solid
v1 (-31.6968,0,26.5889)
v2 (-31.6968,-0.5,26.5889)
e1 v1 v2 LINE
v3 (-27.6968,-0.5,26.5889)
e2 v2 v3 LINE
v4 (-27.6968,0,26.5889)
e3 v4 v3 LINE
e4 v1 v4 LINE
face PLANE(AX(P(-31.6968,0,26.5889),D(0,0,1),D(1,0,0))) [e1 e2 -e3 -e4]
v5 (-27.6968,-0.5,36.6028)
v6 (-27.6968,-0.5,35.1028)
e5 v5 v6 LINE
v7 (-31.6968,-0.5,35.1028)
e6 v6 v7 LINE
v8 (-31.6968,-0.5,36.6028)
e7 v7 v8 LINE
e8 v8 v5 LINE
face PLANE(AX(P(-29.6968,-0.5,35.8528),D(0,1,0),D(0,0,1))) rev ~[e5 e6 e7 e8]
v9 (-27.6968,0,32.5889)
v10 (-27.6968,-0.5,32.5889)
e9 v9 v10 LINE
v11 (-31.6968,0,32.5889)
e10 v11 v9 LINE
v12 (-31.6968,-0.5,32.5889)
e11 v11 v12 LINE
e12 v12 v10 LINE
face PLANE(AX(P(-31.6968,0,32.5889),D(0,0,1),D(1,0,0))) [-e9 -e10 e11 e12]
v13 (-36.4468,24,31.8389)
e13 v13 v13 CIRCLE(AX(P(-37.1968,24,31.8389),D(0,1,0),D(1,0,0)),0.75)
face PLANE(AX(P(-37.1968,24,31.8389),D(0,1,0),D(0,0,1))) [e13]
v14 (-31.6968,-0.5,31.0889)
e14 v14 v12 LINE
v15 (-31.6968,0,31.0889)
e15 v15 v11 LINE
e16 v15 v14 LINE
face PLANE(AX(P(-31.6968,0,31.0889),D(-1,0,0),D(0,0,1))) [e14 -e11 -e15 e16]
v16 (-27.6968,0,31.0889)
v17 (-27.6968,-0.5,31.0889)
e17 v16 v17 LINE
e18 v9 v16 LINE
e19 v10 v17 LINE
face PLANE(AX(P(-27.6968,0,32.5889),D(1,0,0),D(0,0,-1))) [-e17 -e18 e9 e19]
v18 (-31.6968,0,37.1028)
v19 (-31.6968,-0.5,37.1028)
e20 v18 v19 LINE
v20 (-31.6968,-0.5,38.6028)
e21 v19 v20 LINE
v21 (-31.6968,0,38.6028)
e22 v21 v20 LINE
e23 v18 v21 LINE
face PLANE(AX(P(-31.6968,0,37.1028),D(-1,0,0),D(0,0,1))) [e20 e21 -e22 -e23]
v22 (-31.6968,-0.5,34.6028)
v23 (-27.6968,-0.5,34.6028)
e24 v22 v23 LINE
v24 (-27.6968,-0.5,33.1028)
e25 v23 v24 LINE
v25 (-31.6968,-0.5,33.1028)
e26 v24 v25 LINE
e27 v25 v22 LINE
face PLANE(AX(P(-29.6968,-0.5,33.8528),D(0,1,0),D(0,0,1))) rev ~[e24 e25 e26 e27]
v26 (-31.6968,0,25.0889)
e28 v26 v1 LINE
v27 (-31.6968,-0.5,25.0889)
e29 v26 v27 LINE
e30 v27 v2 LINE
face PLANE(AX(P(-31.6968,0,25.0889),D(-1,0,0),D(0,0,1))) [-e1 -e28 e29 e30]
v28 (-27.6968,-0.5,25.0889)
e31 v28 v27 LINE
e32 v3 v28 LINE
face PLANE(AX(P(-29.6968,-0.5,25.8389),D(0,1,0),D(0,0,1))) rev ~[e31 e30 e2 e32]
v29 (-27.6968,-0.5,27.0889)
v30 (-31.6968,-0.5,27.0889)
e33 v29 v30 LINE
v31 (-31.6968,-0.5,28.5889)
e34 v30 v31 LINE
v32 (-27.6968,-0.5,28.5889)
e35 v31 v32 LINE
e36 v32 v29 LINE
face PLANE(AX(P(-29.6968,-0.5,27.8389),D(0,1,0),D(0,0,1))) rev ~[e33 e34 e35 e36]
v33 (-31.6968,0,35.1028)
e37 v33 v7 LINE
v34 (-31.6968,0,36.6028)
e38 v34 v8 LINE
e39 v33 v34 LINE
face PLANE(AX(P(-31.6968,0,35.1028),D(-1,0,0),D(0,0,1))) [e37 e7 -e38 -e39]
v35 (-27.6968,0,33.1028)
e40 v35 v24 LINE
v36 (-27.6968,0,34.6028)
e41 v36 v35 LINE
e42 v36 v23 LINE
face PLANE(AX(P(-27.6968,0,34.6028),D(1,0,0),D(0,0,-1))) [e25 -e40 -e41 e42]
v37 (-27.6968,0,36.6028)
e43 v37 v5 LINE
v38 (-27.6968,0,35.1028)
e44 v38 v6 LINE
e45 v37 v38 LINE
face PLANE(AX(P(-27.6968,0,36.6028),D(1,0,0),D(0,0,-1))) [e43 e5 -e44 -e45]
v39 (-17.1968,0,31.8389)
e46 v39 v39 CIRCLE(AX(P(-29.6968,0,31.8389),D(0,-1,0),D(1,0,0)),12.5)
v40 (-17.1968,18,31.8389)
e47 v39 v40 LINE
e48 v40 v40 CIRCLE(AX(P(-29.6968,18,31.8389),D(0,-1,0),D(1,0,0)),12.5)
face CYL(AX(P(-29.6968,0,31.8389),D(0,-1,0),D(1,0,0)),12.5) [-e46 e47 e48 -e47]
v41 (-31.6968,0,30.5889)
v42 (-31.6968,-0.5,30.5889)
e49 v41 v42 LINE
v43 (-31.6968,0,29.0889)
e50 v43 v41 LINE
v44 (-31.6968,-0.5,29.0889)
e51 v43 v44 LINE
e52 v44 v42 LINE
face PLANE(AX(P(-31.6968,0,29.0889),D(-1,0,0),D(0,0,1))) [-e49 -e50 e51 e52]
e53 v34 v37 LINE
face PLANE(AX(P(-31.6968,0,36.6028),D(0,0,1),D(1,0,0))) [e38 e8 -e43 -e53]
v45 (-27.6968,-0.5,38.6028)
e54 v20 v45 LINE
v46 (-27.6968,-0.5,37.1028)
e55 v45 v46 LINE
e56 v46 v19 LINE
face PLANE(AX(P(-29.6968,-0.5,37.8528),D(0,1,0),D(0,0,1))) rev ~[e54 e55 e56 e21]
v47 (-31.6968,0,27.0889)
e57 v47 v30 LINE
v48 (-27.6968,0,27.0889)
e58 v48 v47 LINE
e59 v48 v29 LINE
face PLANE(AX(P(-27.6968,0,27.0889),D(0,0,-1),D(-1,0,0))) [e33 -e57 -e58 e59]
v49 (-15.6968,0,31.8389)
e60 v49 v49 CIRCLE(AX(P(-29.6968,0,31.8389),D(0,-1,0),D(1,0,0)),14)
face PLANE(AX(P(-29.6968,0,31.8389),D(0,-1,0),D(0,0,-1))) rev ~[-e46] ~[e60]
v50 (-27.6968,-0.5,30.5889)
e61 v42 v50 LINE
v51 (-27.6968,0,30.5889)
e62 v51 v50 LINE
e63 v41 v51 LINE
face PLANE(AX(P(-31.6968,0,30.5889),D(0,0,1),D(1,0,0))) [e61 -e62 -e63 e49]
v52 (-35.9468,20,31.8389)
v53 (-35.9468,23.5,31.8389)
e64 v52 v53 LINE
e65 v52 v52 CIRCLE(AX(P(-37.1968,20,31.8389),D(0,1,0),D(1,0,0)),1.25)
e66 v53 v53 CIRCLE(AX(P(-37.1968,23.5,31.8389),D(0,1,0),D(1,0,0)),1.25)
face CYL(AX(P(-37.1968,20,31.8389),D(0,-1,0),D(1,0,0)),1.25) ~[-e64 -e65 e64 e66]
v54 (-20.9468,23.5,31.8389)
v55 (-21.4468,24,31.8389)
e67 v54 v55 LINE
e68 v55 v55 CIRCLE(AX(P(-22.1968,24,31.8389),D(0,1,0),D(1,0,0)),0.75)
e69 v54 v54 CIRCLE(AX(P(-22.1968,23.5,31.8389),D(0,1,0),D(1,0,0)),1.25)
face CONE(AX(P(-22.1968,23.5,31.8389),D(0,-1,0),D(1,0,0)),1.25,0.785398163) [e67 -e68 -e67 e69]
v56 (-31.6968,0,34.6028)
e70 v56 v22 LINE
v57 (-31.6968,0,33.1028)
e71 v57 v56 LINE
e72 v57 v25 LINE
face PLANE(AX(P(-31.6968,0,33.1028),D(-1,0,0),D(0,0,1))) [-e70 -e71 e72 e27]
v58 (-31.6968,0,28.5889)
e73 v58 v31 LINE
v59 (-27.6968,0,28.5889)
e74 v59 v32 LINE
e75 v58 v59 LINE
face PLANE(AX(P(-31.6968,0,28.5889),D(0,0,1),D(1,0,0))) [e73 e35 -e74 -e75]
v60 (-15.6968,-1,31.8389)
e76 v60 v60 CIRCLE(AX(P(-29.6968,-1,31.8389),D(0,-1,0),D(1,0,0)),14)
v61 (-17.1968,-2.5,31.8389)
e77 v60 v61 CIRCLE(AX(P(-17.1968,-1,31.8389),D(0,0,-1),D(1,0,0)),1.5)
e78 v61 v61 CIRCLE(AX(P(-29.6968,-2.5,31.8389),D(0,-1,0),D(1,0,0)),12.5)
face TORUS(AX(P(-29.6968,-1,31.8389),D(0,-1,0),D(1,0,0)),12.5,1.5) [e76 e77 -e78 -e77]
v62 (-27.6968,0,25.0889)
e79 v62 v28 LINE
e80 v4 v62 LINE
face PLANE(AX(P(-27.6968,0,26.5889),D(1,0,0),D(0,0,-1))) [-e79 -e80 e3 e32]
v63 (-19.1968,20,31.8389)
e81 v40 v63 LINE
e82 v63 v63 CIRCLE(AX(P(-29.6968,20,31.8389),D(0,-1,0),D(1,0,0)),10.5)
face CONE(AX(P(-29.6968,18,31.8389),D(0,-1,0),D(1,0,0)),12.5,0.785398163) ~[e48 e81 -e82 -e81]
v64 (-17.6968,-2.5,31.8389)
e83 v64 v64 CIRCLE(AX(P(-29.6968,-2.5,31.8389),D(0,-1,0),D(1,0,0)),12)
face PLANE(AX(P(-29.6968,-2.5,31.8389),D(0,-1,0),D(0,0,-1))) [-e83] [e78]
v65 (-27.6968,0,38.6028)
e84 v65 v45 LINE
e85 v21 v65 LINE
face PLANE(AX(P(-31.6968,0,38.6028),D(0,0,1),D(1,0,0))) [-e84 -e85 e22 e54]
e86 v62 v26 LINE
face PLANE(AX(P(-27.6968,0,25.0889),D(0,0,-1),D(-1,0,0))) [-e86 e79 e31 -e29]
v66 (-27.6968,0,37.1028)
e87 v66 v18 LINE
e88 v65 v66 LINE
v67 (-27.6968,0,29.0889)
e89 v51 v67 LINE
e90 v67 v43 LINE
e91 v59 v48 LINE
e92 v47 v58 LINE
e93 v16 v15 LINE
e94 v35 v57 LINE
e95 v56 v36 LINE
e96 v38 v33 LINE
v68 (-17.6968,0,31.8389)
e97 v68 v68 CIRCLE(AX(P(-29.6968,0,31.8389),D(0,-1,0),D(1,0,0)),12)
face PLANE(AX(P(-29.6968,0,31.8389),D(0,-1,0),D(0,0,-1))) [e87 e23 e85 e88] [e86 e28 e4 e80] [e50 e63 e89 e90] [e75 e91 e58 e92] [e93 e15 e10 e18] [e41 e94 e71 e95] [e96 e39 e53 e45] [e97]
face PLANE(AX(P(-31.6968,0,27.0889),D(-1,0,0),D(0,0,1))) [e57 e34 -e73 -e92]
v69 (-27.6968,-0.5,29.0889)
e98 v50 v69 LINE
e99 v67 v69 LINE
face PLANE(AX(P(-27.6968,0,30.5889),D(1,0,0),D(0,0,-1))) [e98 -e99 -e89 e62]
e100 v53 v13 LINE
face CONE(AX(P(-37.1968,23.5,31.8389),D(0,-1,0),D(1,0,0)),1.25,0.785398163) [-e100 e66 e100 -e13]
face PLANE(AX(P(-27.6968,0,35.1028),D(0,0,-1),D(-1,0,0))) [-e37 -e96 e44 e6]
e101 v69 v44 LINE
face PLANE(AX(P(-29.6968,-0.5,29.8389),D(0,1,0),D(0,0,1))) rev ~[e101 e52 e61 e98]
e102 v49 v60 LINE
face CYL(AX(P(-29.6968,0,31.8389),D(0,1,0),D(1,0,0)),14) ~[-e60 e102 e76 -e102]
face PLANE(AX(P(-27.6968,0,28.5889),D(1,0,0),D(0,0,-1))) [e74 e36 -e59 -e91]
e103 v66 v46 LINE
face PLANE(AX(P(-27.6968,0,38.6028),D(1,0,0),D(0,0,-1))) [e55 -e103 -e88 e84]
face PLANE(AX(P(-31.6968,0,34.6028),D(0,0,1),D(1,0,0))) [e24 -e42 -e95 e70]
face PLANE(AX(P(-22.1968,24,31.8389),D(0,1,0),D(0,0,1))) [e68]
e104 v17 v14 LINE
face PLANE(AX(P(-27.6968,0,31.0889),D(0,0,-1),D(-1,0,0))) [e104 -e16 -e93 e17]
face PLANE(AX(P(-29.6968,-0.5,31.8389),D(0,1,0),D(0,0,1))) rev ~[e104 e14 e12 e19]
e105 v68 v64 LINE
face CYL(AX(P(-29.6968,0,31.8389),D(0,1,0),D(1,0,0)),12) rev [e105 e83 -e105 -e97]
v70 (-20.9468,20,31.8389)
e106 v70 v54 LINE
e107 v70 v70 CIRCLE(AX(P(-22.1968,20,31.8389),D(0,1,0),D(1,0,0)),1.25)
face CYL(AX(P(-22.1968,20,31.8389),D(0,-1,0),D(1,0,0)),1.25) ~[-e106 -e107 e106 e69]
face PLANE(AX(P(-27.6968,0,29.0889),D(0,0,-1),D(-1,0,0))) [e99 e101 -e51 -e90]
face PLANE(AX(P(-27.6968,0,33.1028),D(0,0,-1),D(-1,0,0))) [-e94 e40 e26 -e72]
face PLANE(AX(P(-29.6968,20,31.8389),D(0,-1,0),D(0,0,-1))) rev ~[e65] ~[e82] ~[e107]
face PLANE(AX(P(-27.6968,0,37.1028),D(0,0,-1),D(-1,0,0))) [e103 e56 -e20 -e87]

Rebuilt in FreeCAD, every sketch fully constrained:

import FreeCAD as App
import Part
import Sketcher

V = App.Vector
Q = App.Units.Quantity


def edges_at(feature, points):
    """Names of the edges that pass closest to the given points."""
    edges = feature.Shape.Edges
    near = lambda p: min(range(len(edges)), key=lambda i: edges[i].distToShape(Part.Vertex(*p))[0])
    return sorted({f"Edge{near(p) + 1}" for p in points})

doc = App.newDocument("Part")
body = doc.addObject("PartDesign::Body", "Body")

# Sketch on XZ plane
sketch1 = body.newObject("Sketcher::SketchObject", "Sketch")
sketch1.AttachmentSupport = (doc.getObject("XZ_Plane"), [""])
sketch1.MapMode = "FlatFace"
sketch1.addGeometry(Part.Circle(V(-30, 32, 0), V(0, 0, 1), 12), False)
sketch1.addConstraint(Sketcher.Constraint("Diameter", 0, Q("25 mm")))
sketch1.addConstraint(Sketcher.Constraint("DistanceY", -1, 1, 0, 3, Q("31.839 mm")))
sketch1.addConstraint(Sketcher.Constraint("DistanceX", 0, 3, -1, 1, Q("29.6968 mm")))
pad1 = body.newObject("PartDesign::Pad", "Pad")
pad1.Profile = sketch1
pad1.Length = 20
pad1.Reversed = True
doc.recompute()

chamfer = body.newObject("PartDesign::Chamfer", "Chamfer")
chamfer.Base = (pad1, edges_at(pad1, [(-42.197, 20, 31.839)]))
chamfer.Size = 2

# Sketch on XZ plane
sketch2 = body.newObject("Sketcher::SketchObject", "Sketch001")
sketch2.AttachmentSupport = (doc.getObject("XZ_Plane"), [""])
sketch2.MapMode = "FlatFace"
sketch2.addGeometry(Part.Circle(V(-30, 32, 0), V(0, 0, 1), 14), False)
sketch2.addGeometry(Part.Circle(V(-30, 32, 0), V(0, 0, 1), 12), False)
sketch2.addConstraint(Sketcher.Constraint("Coincident", 1, 3, 0, 3))
sketch2.addConstraint(Sketcher.Constraint("Diameter", 0, Q("28 mm")))
sketch2.addConstraint(Sketcher.Constraint("Diameter", 1, Q("24 mm")))
sketch2.addConstraint(Sketcher.Constraint("DistanceY", -1, 1, 0, 3, Q("31.839 mm")))
sketch2.addConstraint(Sketcher.Constraint("DistanceX", 0, 3, -1, 1, Q("29.6968 mm")))
pad2 = body.newObject("PartDesign::Pad", "Pad001")
pad2.Profile = sketch2
pad2.Length = 2.5
doc.recompute()

fillet = body.newObject("PartDesign::Fillet", "Fillet")
fillet.Base = (pad2, edges_at(pad2, [(-43.697, -2.5, 31.839)]))
fillet.Radius = 1.5

# Sketch on XZ plane
sketch3 = body.newObject("Sketcher::SketchObject", "Sketch002")
sketch3.AttachmentSupport = (doc.getObject("XZ_Plane"), [""])
sketch3.MapMode = "FlatFace"
sketch3.AttachmentOffset = App.Placement(V(0, 0, -20), App.Rotation())
sketch3.addGeometry(Part.Circle(V(-22.2, 31.8, 0), V(0, 0, 1), 1.2), False)
sketch3.addGeometry(Part.Circle(V(-37.2, 31.8, 0), V(0, 0, 1), 1.2), False)
sketch3.addConstraint(Sketcher.Constraint("Equal", 0, 1))
sketch3.addConstraint(Sketcher.Constraint("Horizontal", 0, 3, 1, 3))
sketch3.addConstraint(Sketcher.Constraint("Diameter", 0, Q("2.5 mm")))
sketch3.addConstraint(Sketcher.Constraint("DistanceX", 1, 3, 0, 3, Q("15 mm")))
sketch3.addConstraint(Sketcher.Constraint("DistanceY", -1, 1, 0, 3, Q("31.839 mm")))
sketch3.addConstraint(Sketcher.Constraint("DistanceX", 0, 3, -1, 1, Q("22.1968 mm")))
pad3 = body.newObject("PartDesign::Pad", "Pad002")
pad3.Profile = sketch3
pad3.Length = 4
pad3.Reversed = True
doc.recompute()

chamfer2 = body.newObject("PartDesign::Chamfer", "Chamfer001")
chamfer2.Base = (pad3, edges_at(pad3, [(-23.447, 24, 31.839), (-38.447, 24, 31.839)]))
chamfer2.Size = 0.5

# Sketch on XZ plane
sketch4 = body.newObject("Sketcher::SketchObject", "Sketch003")
sketch4.AttachmentSupport = (doc.getObject("XZ_Plane"), [""])
sketch4.MapMode = "FlatFace"
sketch4.addGeometry(Part.LineSegment(V(-31.7, 33.1, 0), V(-27.7, 33.1, 0)), False)
sketch4.addGeometry(Part.LineSegment(V(-27.7, 33.1, 0), V(-27.7, 34.6, 0)), False)
sketch4.addGeometry(Part.LineSegment(V(-27.7, 34.6, 0), V(-31.7, 34.6, 0)), False)
sketch4.addGeometry(Part.LineSegment(V(-31.7, 34.6, 0), V(-31.7, 33.1, 0)), False)
sketch4.addGeometry(Part.LineSegment(V(-31.7, 35.1, 0), V(-27.7, 35.1, 0)), False)
sketch4.addGeometry(Part.LineSegment(V(-27.7, 35.1, 0), V(-27.7, 36.6, 0)), False)
sketch4.addGeometry(Part.LineSegment(V(-27.7, 36.6, 0), V(-31.7, 36.6, 0)), False)
sketch4.addGeometry(Part.LineSegment(V(-31.7, 36.6, 0), V(-31.7, 35.1, 0)), False)
sketch4.addGeometry(Part.LineSegment(V(-31.7, 37.1, 0), V(-27.7, 37.1, 0)), False)
sketch4.addGeometry(Part.LineSegment(V(-27.7, 37.1, 0), V(-27.7, 38.6, 0)), False)
sketch4.addGeometry(Part.LineSegment(V(-27.7, 38.6, 0), V(-31.7, 38.6, 0)), False)
sketch4.addGeometry(Part.LineSegment(V(-31.7, 38.6, 0), V(-31.7, 37.1, 0)), False)
sketch4.addGeometry(Part.LineSegment(V(-31.7, 29.1, 0), V(-27.7, 29.1, 0)), False)
sketch4.addGeometry(Part.LineSegment(V(-27.7, 29.1, 0), V(-27.7, 30.6, 0)), False)
sketch4.addGeometry(Part.LineSegment(V(-27.7, 30.6, 0), V(-31.7, 30.6, 0)), False)
sketch4.addGeometry(Part.LineSegment(V(-31.7, 30.6, 0), V(-31.7, 29.1, 0)), False)
sketch4.addGeometry(Part.LineSegment(V(-31.7, 27.1, 0), V(-27.7, 27.1, 0)), False)
sketch4.addGeometry(Part.LineSegment(V(-27.7, 27.1, 0), V(-27.7, 28.6, 0)), False)
sketch4.addGeometry(Part.LineSegment(V(-27.7, 28.6, 0), V(-31.7, 28.6, 0)), False)
sketch4.addGeometry(Part.LineSegment(V(-31.7, 28.6, 0), V(-31.7, 27.1, 0)), False)
sketch4.addGeometry(Part.LineSegment(V(-31.7, 25.1, 0), V(-27.7, 25.1, 0)), False)
sketch4.addGeometry(Part.LineSegment(V(-27.7, 25.1, 0), V(-27.7, 26.6, 0)), False)
sketch4.addGeometry(Part.LineSegment(V(-27.7, 26.6, 0), V(-31.7, 26.6, 0)), False)
sketch4.addGeometry(Part.LineSegment(V(-31.7, 26.6, 0), V(-31.7, 25.1, 0)), False)
sketch4.addGeometry(Part.LineSegment(V(-31.7, 31.1, 0), V(-27.7, 31.1, 0)), False)
sketch4.addGeometry(Part.LineSegment(V(-27.7, 31.1, 0), V(-27.7, 32.6, 0)), False)
sketch4.addGeometry(Part.LineSegment(V(-27.7, 32.6, 0), V(-31.7, 32.6, 0)), False)
sketch4.addGeometry(Part.LineSegment(V(-31.7, 32.6, 0), V(-31.7, 31.1, 0)), False)
sketch4.addConstraint(Sketcher.Constraint("Coincident", 0, 2, 1, 1))
sketch4.addConstraint(Sketcher.Constraint("Coincident", 1, 2, 2, 1))
sketch4.addConstraint(Sketcher.Constraint("Coincident", 2, 2, 3, 1))
sketch4.addConstraint(Sketcher.Constraint("Coincident", 3, 2, 0, 1))
sketch4.addConstraint(Sketcher.Constraint("Coincident", 4, 2, 5, 1))
sketch4.addConstraint(Sketcher.Constraint("Coincident", 5, 2, 6, 1))
sketch4.addConstraint(Sketcher.Constraint("Coincident", 6, 2, 7, 1))
sketch4.addConstraint(Sketcher.Constraint("Coincident", 7, 2, 4, 1))
sketch4.addConstraint(Sketcher.Constraint("Coincident", 8, 2, 9, 1))
sketch4.addConstraint(Sketcher.Constraint("Coincident", 9, 2, 10, 1))
sketch4.addConstraint(Sketcher.Constraint("Coincident", 10, 2, 11, 1))
sketch4.addConstraint(Sketcher.Constraint("Coincident", 11, 2, 8, 1))
sketch4.addConstraint(Sketcher.Constraint("Coincident", 12, 2, 13, 1))
sketch4.addConstraint(Sketcher.Constraint("Coincident", 13, 2, 14, 1))
sketch4.addConstraint(Sketcher.Constraint("Coincident", 14, 2, 15, 1))
sketch4.addConstraint(Sketcher.Constraint("Coincident", 15, 2, 12, 1))
sketch4.addConstraint(Sketcher.Constraint("Coincident", 16, 2, 17, 1))
sketch4.addConstraint(Sketcher.Constraint("Coincident", 17, 2, 18, 1))
sketch4.addConstraint(Sketcher.Constraint("Coincident", 18, 2, 19, 1))
sketch4.addConstraint(Sketcher.Constraint("Coincident", 19, 2, 16, 1))
sketch4.addConstraint(Sketcher.Constraint("Coincident", 20, 2, 21, 1))
sketch4.addConstraint(Sketcher.Constraint("Coincident", 21, 2, 22, 1))
sketch4.addConstraint(Sketcher.Constraint("Coincident", 22, 2, 23, 1))
sketch4.addConstraint(Sketcher.Constraint("Coincident", 23, 2, 20, 1))
sketch4.addConstraint(Sketcher.Constraint("Coincident", 24, 2, 25, 1))
sketch4.addConstraint(Sketcher.Constraint("Coincident", 25, 2, 26, 1))
sketch4.addConstraint(Sketcher.Constraint("Coincident", 26, 2, 27, 1))
sketch4.addConstraint(Sketcher.Constraint("Coincident", 27, 2, 24, 1))
sketch4.addConstraint(Sketcher.Constraint("Horizontal", 0))
sketch4.addConstraint(Sketcher.Constraint("Vertical", 1))
sketch4.addConstraint(Sketcher.Constraint("Horizontal", 2))
sketch4.addConstraint(Sketcher.Constraint("Vertical", 3))
sketch4.addConstraint(Sketcher.Constraint("Horizontal", 4))
sketch4.addConstraint(Sketcher.Constraint("Vertical", 5))
sketch4.addConstraint(Sketcher.Constraint("Horizontal", 6))
sketch4.addConstraint(Sketcher.Constraint("Vertical", 7))
sketch4.addConstraint(Sketcher.Constraint("Horizontal", 8))
sketch4.addConstraint(Sketcher.Constraint("Vertical", 9))
sketch4.addConstraint(Sketcher.Constraint("Horizontal", 10))
sketch4.addConstraint(Sketcher.Constraint("Vertical", 11))
sketch4.addConstraint(Sketcher.Constraint("Horizontal", 12))
sketch4.addConstraint(Sketcher.Constraint("Vertical", 13))
sketch4.addConstraint(Sketcher.Constraint("Horizontal", 14))
sketch4.addConstraint(Sketcher.Constraint("Vertical", 15))
sketch4.addConstraint(Sketcher.Constraint("Horizontal", 16))
sketch4.addConstraint(Sketcher.Constraint("Vertical", 17))
sketch4.addConstraint(Sketcher.Constraint("Horizontal", 18))
sketch4.addConstraint(Sketcher.Constraint("Vertical", 19))
sketch4.addConstraint(Sketcher.Constraint("Horizontal", 20))
sketch4.addConstraint(Sketcher.Constraint("Vertical", 21))
sketch4.addConstraint(Sketcher.Constraint("Horizontal", 22))
sketch4.addConstraint(Sketcher.Constraint("Vertical", 23))
sketch4.addConstraint(Sketcher.Constraint("Horizontal", 24))
sketch4.addConstraint(Sketcher.Constraint("Vertical", 25))
sketch4.addConstraint(Sketcher.Constraint("Horizontal", 26))
sketch4.addConstraint(Sketcher.Constraint("Vertical", 27))
sketch4.addConstraint(Sketcher.Constraint("Vertical", 1, 2, 4, 2))
sketch4.addConstraint(Sketcher.Constraint("Vertical", 3, 2, 6, 2))
sketch4.addConstraint(Sketcher.Constraint("Vertical", 5, 2, 8, 2))
sketch4.addConstraint(Sketcher.Constraint("Vertical", 7, 2, 10, 2))
sketch4.addConstraint(Sketcher.Constraint("Vertical", 9, 2, 12, 2))
sketch4.addConstraint(Sketcher.Constraint("Vertical", 11, 2, 14, 2))
sketch4.addConstraint(Sketcher.Constraint("Vertical", 13, 2, 16, 2))
sketch4.addConstraint(Sketcher.Constraint("Vertical", 15, 2, 18, 2))
sketch4.addConstraint(Sketcher.Constraint("Vertical", 17, 2, 20, 2))
sketch4.addConstraint(Sketcher.Constraint("Vertical", 19, 2, 22, 2))
sketch4.addConstraint(Sketcher.Constraint("Vertical", 21, 2, 24, 2))
sketch4.addConstraint(Sketcher.Constraint("Vertical", 23, 2, 26, 2))
sketch4.addConstraint(Sketcher.Constraint("Equal", 3, 5))
sketch4.addConstraint(Sketcher.Constraint("Equal", 7, 9))
sketch4.addConstraint(Sketcher.Constraint("Equal", 11, 13))
sketch4.addConstraint(Sketcher.Constraint("Equal", 15, 17))
sketch4.addConstraint(Sketcher.Constraint("Equal", 19, 21))
sketch4.addConstraint(Sketcher.Constraint("Equal", 23, 25))
sketch4.addConstraint(Sketcher.Constraint("DistanceY", 0, 2, 4, 2, Q("2 mm")))
sketch4.addConstraint(Sketcher.Constraint("DistanceY", 4, 2, 8, 2, Q("2 mm")))
sketch4.addConstraint(Sketcher.Constraint("DistanceY", 16, 2, 12, 2, Q("2 mm")))
sketch4.addConstraint(Sketcher.Constraint("DistanceY", 20, 2, 16, 2, Q("2 mm")))
sketch4.addConstraint(Sketcher.Constraint("DistanceY", 12, 2, 24, 2, Q("2 mm")))
sketch4.addConstraint(Sketcher.Constraint("DistanceX", 0, 1, 0, 2, Q("4 mm")))
sketch4.addConstraint(Sketcher.Constraint("DistanceY", 1, 1, 1, 2, Q("1.5 mm")))
sketch4.addConstraint(Sketcher.Constraint("DistanceY", -1, 1, 12, 2, Q("29.089 mm")))
sketch4.addConstraint(Sketcher.Constraint("DistanceY", 12, 2, 0, 2, Q("4.014 mm")))
sketch4.addConstraint(Sketcher.Constraint("DistanceX", 0, 2, -1, 1, Q("27.6968 mm")))
pad4 = body.newObject("PartDesign::Pad", "Pad003")
pad4.Profile = sketch4
pad4.Length = 0.5

doc.recompute()
